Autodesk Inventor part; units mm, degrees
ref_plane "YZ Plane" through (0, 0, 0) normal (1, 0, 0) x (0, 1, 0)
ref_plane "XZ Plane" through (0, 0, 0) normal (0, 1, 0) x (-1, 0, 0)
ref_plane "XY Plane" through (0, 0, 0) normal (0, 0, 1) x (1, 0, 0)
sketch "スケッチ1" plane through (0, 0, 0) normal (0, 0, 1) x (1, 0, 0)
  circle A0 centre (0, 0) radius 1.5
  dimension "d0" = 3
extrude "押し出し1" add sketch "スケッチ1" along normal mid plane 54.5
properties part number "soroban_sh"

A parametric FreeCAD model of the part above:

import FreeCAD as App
import Part
import Sketcher

V = App.Vector

doc = App.newDocument("Part")
params = doc.addObject("Spreadsheet::Sheet", "Params")
for row, (alias, value) in enumerate([
    ("sketch1_diameter", "3 mm"),
    ("pad1_length", "54.5 mm"),
], start=1):
    params.set(f"A{row}", alias)
    params.set(f"B{row}", "=" + value)
    params.setAlias(f"B{row}", alias)

body = doc.addObject("PartDesign::Body", "Body")

# Sketch on XY plane
sketch1 = body.newObject("Sketcher::SketchObject", "Sketch")
sketch1.AttachmentSupport = (doc.getObject("XY_Plane"), [""])
sketch1.MapMode = "FlatFace"
sketch1.addGeometry(Part.Circle(V(0, 0, 0), V(0, 0, 1), 1.5), False)
sketch1.addConstraint([
    Sketcher.Constraint("Coincident", 0, 3, -1, 1),
    Sketcher.Constraint("Diameter", 0, 3.0),
])
sketch1.setExpression("Constraints[1]", "Params.sketch1_diameter")
pad1 = body.newObject("PartDesign::Pad", "Pad")
pad1.Profile = sketch1
pad1.setExpression("Length", "Params.pad1_length")
pad1.Midplane = True

doc.recompute()
